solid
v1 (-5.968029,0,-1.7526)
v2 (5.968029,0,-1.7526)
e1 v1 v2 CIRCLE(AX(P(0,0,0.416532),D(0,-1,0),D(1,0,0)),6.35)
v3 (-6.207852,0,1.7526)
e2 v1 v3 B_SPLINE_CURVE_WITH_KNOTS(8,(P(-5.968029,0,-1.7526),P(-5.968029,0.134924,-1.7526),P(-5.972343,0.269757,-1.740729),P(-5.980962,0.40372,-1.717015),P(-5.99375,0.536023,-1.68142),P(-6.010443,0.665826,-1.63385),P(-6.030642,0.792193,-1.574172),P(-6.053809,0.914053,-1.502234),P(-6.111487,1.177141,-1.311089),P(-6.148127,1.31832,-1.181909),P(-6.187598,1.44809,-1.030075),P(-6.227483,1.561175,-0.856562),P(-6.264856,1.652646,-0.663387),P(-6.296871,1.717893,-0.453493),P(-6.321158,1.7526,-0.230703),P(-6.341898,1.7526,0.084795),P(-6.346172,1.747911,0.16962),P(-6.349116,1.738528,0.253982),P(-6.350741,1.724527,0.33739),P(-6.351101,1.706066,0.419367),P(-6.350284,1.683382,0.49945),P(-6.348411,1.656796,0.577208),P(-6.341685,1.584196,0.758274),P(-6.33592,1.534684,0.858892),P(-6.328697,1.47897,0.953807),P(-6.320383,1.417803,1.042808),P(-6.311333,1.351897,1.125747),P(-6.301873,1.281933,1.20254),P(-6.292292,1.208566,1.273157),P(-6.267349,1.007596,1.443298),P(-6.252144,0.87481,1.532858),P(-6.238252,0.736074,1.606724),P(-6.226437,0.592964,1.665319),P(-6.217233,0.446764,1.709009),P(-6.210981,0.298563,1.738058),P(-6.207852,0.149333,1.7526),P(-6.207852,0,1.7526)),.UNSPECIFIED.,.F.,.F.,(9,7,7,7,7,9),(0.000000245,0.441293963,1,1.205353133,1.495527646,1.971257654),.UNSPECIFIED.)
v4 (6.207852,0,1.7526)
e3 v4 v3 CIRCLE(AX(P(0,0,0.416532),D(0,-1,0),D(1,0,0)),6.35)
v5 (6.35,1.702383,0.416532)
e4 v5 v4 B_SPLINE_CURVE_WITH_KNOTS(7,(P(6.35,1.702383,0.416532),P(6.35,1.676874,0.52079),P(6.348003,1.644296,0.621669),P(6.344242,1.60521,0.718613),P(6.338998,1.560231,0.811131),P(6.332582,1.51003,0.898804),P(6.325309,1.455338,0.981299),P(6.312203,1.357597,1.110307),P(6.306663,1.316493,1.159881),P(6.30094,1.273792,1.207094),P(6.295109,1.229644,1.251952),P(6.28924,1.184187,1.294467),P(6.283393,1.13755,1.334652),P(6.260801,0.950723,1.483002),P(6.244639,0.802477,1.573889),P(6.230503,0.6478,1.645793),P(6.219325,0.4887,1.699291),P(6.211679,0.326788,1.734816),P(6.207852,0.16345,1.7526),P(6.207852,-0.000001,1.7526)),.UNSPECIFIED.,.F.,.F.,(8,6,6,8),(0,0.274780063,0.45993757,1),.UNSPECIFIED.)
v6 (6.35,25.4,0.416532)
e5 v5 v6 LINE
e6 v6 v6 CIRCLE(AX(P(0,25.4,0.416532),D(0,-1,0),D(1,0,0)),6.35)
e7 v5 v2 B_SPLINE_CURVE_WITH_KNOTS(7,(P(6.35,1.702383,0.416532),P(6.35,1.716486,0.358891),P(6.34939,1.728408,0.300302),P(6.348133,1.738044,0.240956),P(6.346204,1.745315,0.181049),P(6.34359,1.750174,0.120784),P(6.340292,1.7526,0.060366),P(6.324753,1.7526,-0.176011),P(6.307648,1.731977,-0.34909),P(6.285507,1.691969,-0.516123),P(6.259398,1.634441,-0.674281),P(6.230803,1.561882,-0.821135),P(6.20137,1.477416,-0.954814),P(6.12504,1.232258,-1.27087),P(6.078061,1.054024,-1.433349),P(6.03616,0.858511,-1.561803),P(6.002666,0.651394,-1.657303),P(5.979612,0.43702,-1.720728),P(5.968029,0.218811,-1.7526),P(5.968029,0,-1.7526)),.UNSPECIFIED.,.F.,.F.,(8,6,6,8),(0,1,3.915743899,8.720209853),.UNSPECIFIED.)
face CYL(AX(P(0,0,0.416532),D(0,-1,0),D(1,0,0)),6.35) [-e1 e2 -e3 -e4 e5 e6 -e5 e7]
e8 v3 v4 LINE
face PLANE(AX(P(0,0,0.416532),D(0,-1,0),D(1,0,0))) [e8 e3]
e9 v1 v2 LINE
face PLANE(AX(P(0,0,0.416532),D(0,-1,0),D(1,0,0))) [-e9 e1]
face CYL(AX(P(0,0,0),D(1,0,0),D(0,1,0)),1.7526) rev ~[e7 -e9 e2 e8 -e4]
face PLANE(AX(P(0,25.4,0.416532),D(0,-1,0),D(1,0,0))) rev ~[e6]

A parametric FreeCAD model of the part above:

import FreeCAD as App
import Part
import Sketcher
from FreeCAD import Vector
Q = App.Units.Quantity

doc = App.newDocument("Part")
params = doc.addObject("Spreadsheet::Sheet", "Params")
for row, (alias, value) in enumerate([
    ("sketch1_diameter", "0.5 in"),
    ("pad1_length", "1 in"),
    ("sketch2_diameter", "0.138 in"),
    ("pocket1_length", "1 in"),
], start=1):
    params.set(f"A{row}", alias)
    params.set(f"B{row}", "=" + value)
    params.setAlias(f"B{row}", alias)

body = doc.addObject("PartDesign::Body", "Body")

# Sketch on XZ plane
sketch1 = body.newObject("Sketcher::SketchObject", "Sketch")
sketch1.AttachmentSupport = (doc.getObject("XZ_Plane"), [""])
sketch1.MapMode = "FlatFace"
sketch1.addGeometry(Part.Circle(Vector(0, 0.416532, 0), Vector(0, 0, 1), 6.35), False)
sketch1.addConstraint([
    Sketcher.Constraint("PointOnObject", 0, 3, -2),
    Sketcher.Constraint("Diameter", 0, Q("0.5 in")),
    Sketcher.Constraint("DistanceY", -1, 1, 0, 3, 0.416532),
])
sketch1.setExpression("Constraints[1]", "Params.sketch1_diameter")
pad1 = body.newObject("PartDesign::Pad", "Pad")
pad1.Profile = sketch1
pad1.setExpression("Length", "Params.pad1_length")
pad1.Reversed = True

# Sketch on YZ plane
sketch2 = body.newObject("Sketcher::SketchObject", "Sketch001")
sketch2.AttachmentSupport = (doc.getObject("YZ_Plane"), [""])
sketch2.MapMode = "FlatFace"
sketch2.addGeometry(Part.Circle(Vector(0, 0, 0), Vector(0, 0, 1), 1.7526), False)
sketch2.addConstraint([
    Sketcher.Constraint("Coincident", 0, 3, -1, 1),
    Sketcher.Constraint("Diameter", 0, Q("0.138 in")),
])
sketch2.setExpression("Constraints[1]", "Params.sketch2_diameter")
pocket1 = body.newObject("PartDesign::Pocket", "Pocket")
pocket1.Profile = sketch2
pocket1.setExpression("Length", "Params.pocket1_length")
pocket1.Midplane = True

doc.recompute()
